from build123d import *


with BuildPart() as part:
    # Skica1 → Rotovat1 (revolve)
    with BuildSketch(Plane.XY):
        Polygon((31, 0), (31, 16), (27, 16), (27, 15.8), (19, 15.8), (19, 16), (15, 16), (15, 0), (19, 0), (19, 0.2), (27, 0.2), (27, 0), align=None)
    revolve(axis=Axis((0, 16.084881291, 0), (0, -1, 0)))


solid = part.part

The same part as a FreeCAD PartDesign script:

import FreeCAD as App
import Part
import Sketcher

V = App.Vector
Q = App.Units.Quantity

doc = App.newDocument("Part")
body = doc.addObject("PartDesign::Body", "Body")

sketch1 = body.newObject("Sketcher::SketchObject", "Sketch")
sketch1.AttachmentSupport = (doc.getObject("XY_Plane"), [""])
sketch1.MapMode = "FlatFace"
sketch1.addGeometry([
    Part.LineSegment(V(31, 0, 0), V(31, 16, 0)),
    Part.LineSegment(V(31, 16, 0), V(27, 16, 0)),
    Part.LineSegment(V(27, 16, 0), V(27, 15.8, 0)),
    Part.LineSegment(V(27, 15.8, 0), V(19, 15.8, 0)),
    Part.LineSegment(V(19, 15.8, 0), V(19, 16, 0)),
    Part.LineSegment(V(19, 16, 0), V(15, 16, 0)),
    Part.LineSegment(V(15, 16, 0), V(15, 0, 0)),
    Part.LineSegment(V(15, 0, 0), V(19, 0, 0)),
    Part.LineSegment(V(19, 0, 0), V(19, 0.2, 0)),
    Part.LineSegment(V(19, 0.2, 0), V(27, 0.2, 0)),
    Part.LineSegment(V(27, 0.2, 0), V(27, 0, 0)),
    Part.LineSegment(V(27, 0, 0), V(31, 0, 0)),
], False)
sketch1.addConstraint([
    Sketcher.Constraint("Coincident", 0, 2, 1, 1),
    Sketcher.Constraint("Coincident", 1, 2, 2, 1),
    Sketcher.Constraint("Coincident", 2, 2, 3, 1),
    Sketcher.Constraint("Coincident", 3, 2, 4, 1),
    Sketcher.Constraint("Coincident", 4, 2, 5, 1),
    Sketcher.Constraint("Coincident", 5, 2, 6, 1),
    Sketcher.Constraint("Coincident", 6, 2, 7, 1),
    Sketcher.Constraint("Coincident", 7, 2, 8, 1),
    Sketcher.Constraint("Coincident", 8, 2, 9, 1),
    Sketcher.Constraint("Coincident", 9, 2, 10, 1),
    Sketcher.Constraint("Coincident", 10, 2, 11, 1),
    Sketcher.Constraint("Coincident", 11, 2, 0, 1),
    Sketcher.Constraint("Vertical", 0),
    Sketcher.Constraint("Horizontal", 1),
    Sketcher.Constraint("Vertical", 2),
    Sketcher.Constraint("Horizontal", 3),
    Sketcher.Constraint("Vertical", 4),
    Sketcher.Constraint("Horizontal", 5),
    Sketcher.Constraint("Vertical", 6),
    Sketcher.Constraint("Horizontal", 7),
    Sketcher.Constraint("Vertical", 8),
    Sketcher.Constraint("Horizontal", 9),
    Sketcher.Constraint("Vertical", 10),
    Sketcher.Constraint("Horizontal", 11),
    Sketcher.Constraint("PointOnObject", 6, 2, -1),
    Sketcher.Constraint("PointOnObject", 10, 2, -1),
    Sketcher.Constraint("Horizontal", 1, 2, 4, 2),
    Sketcher.Constraint("Vertical", 4, 2, 7, 2),
    Sketcher.Constraint("Vertical", 2, 2, 9, 2),
    Sketcher.Constraint("Equal", 1, 5),
    Sketcher.Constraint("Equal", 4, 8),
    Sketcher.Constraint("DistanceX", 1, 2, 1, 1, Q("4 mm")),
    Sketcher.Constraint("DistanceX", 3, 2, 3, 1, Q("8 mm")),
    Sketcher.Constraint("DistanceY", 0, 1, 0, 2, Q("16 mm")),
    Sketcher.Constraint("DistanceY", 2, 2, 2, 1, Q("0.2 mm")),
    Sketcher.Constraint("DistanceX", -1, 1, 0, 2, Q("31 mm")),
])
revolution = body.newObject("PartDesign::Revolution", "Revolution")
revolution.Profile = sketch1
revolution.ReferenceAxis = (sketch1, ["V_Axis"])
revolution.Angle = 360

doc.recompute()
